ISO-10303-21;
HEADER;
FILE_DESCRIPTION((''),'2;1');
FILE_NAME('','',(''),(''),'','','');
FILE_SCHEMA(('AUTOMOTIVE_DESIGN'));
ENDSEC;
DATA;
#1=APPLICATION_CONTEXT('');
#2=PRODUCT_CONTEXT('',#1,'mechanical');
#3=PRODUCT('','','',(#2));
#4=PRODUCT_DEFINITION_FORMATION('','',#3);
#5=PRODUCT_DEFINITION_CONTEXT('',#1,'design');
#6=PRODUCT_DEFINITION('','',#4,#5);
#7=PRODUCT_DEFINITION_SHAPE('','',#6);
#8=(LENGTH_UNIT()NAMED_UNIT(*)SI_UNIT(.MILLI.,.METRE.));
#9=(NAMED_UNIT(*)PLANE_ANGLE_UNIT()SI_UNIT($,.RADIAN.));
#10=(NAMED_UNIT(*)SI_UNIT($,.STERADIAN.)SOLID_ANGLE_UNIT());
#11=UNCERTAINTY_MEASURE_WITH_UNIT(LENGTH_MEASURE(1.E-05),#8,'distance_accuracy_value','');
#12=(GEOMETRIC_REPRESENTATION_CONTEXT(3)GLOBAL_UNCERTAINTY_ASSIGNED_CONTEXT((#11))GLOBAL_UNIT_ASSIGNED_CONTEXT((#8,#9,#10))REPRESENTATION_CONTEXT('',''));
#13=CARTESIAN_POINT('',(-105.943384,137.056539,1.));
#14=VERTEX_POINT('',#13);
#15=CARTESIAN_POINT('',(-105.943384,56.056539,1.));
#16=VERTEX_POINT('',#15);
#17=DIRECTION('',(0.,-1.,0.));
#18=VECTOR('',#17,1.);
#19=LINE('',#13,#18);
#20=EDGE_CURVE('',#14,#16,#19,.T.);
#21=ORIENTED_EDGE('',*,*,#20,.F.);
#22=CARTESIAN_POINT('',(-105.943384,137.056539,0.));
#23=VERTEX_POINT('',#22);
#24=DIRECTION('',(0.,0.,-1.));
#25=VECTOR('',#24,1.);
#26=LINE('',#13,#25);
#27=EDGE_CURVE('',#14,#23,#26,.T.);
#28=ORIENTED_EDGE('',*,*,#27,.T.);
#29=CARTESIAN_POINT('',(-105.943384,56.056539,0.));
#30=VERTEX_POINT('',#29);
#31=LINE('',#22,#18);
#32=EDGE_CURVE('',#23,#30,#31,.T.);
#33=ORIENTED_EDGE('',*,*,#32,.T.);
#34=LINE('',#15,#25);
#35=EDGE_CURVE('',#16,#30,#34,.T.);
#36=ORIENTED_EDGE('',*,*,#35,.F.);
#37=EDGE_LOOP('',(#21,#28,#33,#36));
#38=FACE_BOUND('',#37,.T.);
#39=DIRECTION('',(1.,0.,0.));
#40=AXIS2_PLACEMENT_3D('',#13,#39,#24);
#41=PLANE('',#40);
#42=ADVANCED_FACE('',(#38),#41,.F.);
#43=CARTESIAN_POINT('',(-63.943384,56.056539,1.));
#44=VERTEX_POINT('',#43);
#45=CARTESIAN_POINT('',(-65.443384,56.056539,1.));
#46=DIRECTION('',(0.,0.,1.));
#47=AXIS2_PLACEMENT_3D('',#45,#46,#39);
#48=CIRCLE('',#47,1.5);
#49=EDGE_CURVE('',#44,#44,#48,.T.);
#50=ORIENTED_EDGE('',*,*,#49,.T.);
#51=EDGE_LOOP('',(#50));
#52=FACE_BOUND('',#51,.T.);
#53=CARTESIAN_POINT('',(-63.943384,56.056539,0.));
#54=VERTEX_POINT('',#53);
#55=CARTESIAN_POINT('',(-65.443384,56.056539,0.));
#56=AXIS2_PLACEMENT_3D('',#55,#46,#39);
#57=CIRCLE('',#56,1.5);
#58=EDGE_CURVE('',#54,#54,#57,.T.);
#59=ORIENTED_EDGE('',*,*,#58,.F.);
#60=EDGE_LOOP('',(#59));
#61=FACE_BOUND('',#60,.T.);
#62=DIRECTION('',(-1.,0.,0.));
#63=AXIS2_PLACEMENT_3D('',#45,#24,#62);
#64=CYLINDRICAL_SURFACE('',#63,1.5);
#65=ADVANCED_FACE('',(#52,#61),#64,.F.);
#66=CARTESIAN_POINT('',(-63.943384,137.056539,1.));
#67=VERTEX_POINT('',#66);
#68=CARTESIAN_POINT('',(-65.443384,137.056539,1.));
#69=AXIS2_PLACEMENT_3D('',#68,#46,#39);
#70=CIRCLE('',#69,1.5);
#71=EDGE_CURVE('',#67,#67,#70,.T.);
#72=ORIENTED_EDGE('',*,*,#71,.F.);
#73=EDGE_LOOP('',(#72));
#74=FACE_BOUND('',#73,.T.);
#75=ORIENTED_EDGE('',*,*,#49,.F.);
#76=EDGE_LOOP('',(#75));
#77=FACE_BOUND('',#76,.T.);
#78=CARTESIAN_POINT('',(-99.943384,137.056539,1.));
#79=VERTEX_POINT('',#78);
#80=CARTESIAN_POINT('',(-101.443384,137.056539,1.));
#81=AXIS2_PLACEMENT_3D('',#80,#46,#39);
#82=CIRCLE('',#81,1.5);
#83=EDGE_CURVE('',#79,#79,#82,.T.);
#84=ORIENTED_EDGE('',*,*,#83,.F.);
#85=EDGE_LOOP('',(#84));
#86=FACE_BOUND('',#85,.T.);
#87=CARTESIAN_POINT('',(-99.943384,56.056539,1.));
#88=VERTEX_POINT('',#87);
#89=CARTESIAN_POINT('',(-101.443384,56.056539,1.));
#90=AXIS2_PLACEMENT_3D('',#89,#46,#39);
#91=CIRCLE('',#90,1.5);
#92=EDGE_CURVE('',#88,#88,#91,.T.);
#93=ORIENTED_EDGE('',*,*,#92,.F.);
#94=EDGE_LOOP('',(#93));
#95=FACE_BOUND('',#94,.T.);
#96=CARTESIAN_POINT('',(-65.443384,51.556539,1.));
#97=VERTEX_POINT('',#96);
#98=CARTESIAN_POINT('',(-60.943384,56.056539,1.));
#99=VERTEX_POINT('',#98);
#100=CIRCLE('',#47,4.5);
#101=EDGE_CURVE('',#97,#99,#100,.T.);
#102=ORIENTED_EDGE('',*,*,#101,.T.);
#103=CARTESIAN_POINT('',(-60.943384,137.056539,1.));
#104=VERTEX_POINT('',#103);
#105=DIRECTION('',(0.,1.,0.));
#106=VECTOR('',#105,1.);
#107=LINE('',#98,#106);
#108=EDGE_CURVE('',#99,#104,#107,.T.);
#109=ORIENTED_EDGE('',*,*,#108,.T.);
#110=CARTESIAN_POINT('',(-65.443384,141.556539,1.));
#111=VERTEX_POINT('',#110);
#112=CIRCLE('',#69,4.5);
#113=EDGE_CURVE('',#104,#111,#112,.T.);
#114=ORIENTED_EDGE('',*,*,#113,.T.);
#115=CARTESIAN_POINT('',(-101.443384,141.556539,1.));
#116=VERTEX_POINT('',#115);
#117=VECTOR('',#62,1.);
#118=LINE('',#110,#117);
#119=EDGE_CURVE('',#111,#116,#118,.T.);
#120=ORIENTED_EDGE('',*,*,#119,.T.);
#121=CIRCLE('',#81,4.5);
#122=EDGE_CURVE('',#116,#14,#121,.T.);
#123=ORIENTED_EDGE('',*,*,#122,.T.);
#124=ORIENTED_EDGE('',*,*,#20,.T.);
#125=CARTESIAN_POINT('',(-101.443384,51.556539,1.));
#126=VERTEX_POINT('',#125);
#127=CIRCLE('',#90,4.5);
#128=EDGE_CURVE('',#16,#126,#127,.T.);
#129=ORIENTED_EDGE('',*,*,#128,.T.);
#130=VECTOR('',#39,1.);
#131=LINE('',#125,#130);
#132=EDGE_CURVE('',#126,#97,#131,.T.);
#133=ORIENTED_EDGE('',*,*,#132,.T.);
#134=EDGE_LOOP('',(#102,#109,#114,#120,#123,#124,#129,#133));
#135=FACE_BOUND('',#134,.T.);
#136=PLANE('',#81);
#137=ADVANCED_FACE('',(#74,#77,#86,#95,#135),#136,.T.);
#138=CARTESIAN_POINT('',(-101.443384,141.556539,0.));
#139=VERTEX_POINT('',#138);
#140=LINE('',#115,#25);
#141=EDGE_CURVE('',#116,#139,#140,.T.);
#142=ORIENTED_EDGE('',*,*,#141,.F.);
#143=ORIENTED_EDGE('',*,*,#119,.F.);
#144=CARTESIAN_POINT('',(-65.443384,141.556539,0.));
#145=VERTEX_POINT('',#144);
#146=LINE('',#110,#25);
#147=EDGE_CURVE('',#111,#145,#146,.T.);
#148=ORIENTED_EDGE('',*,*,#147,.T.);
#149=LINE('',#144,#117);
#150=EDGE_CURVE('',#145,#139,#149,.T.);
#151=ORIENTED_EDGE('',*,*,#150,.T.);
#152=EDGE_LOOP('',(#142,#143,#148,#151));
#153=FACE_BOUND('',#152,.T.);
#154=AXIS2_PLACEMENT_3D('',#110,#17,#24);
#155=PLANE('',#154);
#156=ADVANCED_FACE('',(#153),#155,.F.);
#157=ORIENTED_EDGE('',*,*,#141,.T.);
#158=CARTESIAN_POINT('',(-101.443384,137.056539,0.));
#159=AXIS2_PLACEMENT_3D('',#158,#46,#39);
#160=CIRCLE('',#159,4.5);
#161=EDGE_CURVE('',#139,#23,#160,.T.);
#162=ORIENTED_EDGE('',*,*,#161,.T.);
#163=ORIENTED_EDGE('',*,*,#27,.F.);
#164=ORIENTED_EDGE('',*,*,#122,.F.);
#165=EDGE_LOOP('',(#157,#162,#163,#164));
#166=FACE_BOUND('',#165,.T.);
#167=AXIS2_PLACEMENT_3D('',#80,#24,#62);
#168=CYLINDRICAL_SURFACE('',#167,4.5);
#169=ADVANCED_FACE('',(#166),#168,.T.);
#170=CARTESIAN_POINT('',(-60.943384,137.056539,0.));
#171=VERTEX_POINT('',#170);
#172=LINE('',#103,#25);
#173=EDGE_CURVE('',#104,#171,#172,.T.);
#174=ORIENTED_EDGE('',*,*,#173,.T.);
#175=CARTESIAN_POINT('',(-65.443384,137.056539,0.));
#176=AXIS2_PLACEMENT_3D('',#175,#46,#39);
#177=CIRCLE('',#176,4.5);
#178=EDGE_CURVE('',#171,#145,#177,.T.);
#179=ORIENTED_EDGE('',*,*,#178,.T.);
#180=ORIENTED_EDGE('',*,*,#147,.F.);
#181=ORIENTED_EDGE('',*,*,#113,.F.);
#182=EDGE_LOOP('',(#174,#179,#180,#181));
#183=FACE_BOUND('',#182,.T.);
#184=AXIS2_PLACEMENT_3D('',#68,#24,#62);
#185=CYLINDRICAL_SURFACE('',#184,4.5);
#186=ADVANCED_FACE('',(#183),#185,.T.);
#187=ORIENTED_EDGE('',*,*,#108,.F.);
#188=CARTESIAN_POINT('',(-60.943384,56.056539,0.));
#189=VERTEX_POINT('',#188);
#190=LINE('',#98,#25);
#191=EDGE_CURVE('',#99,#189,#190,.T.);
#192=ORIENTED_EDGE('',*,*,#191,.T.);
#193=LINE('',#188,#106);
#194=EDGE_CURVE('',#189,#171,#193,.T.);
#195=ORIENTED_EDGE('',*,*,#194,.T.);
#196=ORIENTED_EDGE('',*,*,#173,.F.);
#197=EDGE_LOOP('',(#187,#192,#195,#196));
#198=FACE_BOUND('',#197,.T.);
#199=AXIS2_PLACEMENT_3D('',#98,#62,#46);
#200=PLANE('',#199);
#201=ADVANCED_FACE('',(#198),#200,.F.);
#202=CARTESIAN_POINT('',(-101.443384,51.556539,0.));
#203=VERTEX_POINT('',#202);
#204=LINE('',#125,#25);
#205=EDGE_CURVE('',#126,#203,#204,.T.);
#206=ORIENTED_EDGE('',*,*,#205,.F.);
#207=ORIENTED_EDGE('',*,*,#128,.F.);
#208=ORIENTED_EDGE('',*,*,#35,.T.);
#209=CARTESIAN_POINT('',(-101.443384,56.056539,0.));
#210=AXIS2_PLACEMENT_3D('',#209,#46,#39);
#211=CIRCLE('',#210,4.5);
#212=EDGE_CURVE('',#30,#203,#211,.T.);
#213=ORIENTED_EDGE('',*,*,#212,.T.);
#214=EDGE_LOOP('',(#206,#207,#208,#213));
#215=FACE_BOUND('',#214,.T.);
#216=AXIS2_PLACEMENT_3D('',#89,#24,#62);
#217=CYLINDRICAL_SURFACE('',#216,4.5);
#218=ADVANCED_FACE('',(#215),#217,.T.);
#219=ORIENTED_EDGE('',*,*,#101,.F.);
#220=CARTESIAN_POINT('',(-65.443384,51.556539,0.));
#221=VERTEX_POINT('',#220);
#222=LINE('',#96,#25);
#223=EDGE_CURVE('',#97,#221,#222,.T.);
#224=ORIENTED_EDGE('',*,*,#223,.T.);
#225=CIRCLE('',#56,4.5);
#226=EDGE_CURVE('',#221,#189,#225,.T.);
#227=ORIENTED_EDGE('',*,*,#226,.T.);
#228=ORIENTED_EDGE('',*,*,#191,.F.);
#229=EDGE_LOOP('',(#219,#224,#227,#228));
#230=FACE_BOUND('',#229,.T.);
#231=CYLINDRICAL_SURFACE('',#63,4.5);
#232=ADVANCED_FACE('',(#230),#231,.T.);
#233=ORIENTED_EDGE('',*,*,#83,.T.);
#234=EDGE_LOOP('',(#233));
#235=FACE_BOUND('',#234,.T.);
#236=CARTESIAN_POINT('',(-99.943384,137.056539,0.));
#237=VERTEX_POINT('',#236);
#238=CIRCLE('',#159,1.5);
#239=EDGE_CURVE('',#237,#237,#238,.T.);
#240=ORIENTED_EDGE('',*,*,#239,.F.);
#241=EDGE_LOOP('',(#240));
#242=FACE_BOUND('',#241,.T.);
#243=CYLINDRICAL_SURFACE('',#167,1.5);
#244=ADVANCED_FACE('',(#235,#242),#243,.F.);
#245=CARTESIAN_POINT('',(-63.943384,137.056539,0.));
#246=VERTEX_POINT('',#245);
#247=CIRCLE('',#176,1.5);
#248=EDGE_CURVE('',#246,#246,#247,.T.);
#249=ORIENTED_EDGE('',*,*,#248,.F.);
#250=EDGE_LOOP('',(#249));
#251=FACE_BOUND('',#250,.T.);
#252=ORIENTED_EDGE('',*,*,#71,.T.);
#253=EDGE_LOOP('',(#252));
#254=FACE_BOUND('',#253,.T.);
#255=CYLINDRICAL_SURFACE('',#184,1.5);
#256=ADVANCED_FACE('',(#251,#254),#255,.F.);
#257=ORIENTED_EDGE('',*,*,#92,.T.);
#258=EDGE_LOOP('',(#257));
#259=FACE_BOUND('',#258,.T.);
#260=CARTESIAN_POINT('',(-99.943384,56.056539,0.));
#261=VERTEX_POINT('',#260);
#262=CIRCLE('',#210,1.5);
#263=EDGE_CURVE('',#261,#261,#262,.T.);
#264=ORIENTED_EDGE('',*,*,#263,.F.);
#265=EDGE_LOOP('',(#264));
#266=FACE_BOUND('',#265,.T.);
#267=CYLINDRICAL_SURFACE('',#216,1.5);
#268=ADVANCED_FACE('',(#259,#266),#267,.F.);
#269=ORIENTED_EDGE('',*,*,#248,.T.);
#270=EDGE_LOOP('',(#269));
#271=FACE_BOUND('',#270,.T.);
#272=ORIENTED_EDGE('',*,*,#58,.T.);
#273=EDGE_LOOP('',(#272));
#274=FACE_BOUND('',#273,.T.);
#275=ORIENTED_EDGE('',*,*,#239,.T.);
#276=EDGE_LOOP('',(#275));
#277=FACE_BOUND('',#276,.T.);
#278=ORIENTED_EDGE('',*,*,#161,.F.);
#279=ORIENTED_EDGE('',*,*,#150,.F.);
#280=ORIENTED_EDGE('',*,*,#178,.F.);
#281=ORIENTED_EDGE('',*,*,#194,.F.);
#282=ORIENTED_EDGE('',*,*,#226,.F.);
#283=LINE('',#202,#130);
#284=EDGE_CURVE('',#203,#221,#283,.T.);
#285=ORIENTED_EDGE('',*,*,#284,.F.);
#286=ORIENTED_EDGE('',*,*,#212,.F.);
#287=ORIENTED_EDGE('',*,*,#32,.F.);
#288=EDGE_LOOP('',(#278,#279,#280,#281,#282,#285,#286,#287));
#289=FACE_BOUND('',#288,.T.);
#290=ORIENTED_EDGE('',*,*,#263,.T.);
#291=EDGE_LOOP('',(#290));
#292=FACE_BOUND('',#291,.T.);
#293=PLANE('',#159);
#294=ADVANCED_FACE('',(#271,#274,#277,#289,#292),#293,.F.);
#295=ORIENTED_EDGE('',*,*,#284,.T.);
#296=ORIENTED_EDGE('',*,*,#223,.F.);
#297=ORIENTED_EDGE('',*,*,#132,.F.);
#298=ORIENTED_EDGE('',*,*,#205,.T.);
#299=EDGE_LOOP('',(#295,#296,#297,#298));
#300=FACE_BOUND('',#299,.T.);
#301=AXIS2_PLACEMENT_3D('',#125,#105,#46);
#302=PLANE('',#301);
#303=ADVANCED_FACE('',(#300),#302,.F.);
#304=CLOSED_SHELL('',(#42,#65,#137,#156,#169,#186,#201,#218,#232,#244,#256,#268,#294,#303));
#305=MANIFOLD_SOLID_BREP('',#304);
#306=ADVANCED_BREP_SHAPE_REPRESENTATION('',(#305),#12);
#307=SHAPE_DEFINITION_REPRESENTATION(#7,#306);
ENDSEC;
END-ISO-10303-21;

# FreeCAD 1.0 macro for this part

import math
import FreeCAD as App
import Part
import Sketcher

V = App.Vector
Q = App.Units.Quantity

doc = App.newDocument("Part")
body = doc.addObject("PartDesign::Body", "Body")

# Sketch on XY plane
sketch1 = body.newObject("Sketcher::SketchObject", "Sketch")
sketch1.AttachmentSupport = (doc.getObject("XY_Plane"), [""])
sketch1.MapMode = "FlatFace"
sketch1.addGeometry([
    Part.LineSegment(V(-105.9, 137.1, 0), V(-105.9, 56.1, 0)),  # 0
    Part.ArcOfCircle(Part.Circle(V(-101.4, 56.1, 0), V(0, 0, 1), 4.5), math.radians(-180), math.radians(-90)),  # 1
    Part.LineSegment(V(-101.4, 51.6, 0), V(-65.4, 51.6, 0)),  # 2
    Part.ArcOfCircle(Part.Circle(V(-65.4, 56.1, 0), V(0, 0, 1), 4.5), math.radians(-90), math.radians(0)),  # 3
    Part.LineSegment(V(-60.9, 56.1, 0), V(-60.9, 137.1, 0)),  # 4
    Part.ArcOfCircle(Part.Circle(V(-65.4, 137.1, 0), V(0, 0, 1), 4.5), math.radians(0), math.radians(90)),  # 5
    Part.LineSegment(V(-65.4, 141.6, 0), V(-101.4, 141.6, 0)),  # 6
    Part.ArcOfCircle(Part.Circle(V(-101.4, 137.1, 0), V(0, 0, 1), 4.5), math.radians(90), math.radians(180)),  # 7
    Part.Circle(V(-101.4, 56.1, 0), V(0, 0, 1), 1.5),  # 8
    Part.Circle(V(-65.4, 56.1, 0), V(0, 0, 1), 1.5),  # 9
    Part.Circle(V(-101.4, 137.1, 0), V(0, 0, 1), 1.5),  # 10
    Part.Circle(V(-65.4, 137.1, 0), V(0, 0, 1), 1.5),  # 11
], False)
sketch1.addConstraint([
    Sketcher.Constraint("Tangent", 0, 2, 1, 1),
    Sketcher.Constraint("Tangent", 1, 2, 2, 1),
    Sketcher.Constraint("Tangent", 2, 2, 3, 1),
    Sketcher.Constraint("Tangent", 3, 2, 4, 1),
    Sketcher.Constraint("Tangent", 4, 2, 5, 1),
    Sketcher.Constraint("Tangent", 5, 2, 6, 1),
    Sketcher.Constraint("Tangent", 6, 2, 7, 1),
    Sketcher.Constraint("Tangent", 7, 2, 0, 1),
    Sketcher.Constraint("Vertical", 0),
    Sketcher.Constraint("Horizontal", 2),
    Sketcher.Constraint("Vertical", 4),
    Sketcher.Constraint("Horizontal", 6),
    Sketcher.Constraint("Coincident", 8, 3, 1, 3),
    Sketcher.Constraint("Coincident", 9, 3, 3, 3),
    Sketcher.Constraint("Coincident", 10, 3, 7, 3),
    Sketcher.Constraint("Coincident", 11, 3, 5, 3),
    Sketcher.Constraint("Equal", 1, 3),
    Sketcher.Constraint("Equal", 3, 5),
    Sketcher.Constraint("Equal", 5, 7),
    Sketcher.Constraint("Equal", 8, 9),
    Sketcher.Constraint("Equal", 9, 10),
    Sketcher.Constraint("Equal", 10, 11),
    Sketcher.Constraint("Diameter", 8, Q("3 mm")),
    Sketcher.Constraint("Radius", 1, Q("4.5 mm")),
    Sketcher.Constraint("DistanceX", 2, 1, 2, 2, Q("36 mm")),
    Sketcher.Constraint("DistanceY", 0, 2, 0, 1, Q("81 mm")),
    Sketcher.Constraint("DistanceY", -1, 1, 1, 3, Q("56.056539 mm")),
    Sketcher.Constraint("DistanceX", 1, 3, -1, 1, Q("101.443384 mm")),
])
pad1 = body.newObject("PartDesign::Pad", "Pad")
pad1.Profile = sketch1
pad1.Length = 1

doc.recompute()
